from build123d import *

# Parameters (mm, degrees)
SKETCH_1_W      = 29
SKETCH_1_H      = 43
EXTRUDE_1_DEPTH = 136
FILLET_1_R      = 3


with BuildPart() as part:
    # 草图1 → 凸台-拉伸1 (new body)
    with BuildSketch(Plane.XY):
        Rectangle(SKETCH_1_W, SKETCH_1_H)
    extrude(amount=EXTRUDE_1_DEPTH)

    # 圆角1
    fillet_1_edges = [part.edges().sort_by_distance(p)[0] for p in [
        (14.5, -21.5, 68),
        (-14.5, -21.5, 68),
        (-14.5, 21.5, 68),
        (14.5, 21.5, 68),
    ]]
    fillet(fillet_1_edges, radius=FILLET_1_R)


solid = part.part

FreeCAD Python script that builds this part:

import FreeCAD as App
import Part
import Sketcher

V = App.Vector


def edges_at(feature, points):
    """Names of the edges that pass closest to the given points."""
    edges = feature.Shape.Edges
    near = lambda p: min(range(len(edges)), key=lambda i: edges[i].distToShape(Part.Vertex(*p))[0])
    return sorted({f"Edge{near(p) + 1}" for p in points})

doc = App.newDocument("Part")
params = doc.addObject("Spreadsheet::Sheet", "Params")
for row, (alias, value) in enumerate([
    ("sketch1_width", "29 mm"),
    ("sketch1_height", "43 mm"),
    ("pad1_length", "136 mm"),
    ("fillet_radius", "3 mm"),
], start=1):
    params.set(f"A{row}", alias)
    params.set(f"B{row}", "=" + value)
    params.setAlias(f"B{row}", alias)

body = doc.addObject("PartDesign::Body", "Body")

# Sketch on XY plane
sketch1 = body.newObject("Sketcher::SketchObject", "Sketch")
sketch1.AttachmentSupport = (doc.getObject("XY_Plane"), [""])
sketch1.MapMode = "FlatFace"
sketch1.addGeometry(Part.LineSegment(V(-14, 22, 0), V(-14, -22, 0)), False)
sketch1.addGeometry(Part.LineSegment(V(-14, -22, 0), V(14, -22, 0)), False)
sketch1.addGeometry(Part.LineSegment(V(14, -22, 0), V(14, 22, 0)), False)
sketch1.addGeometry(Part.LineSegment(V(14, 22, 0), V(-14, 22, 0)), False)
sketch1.addConstraint(Sketcher.Constraint("Coincident", 0, 2, 1, 1))
sketch1.addConstraint(Sketcher.Constraint("Coincident", 1, 2, 2, 1))
sketch1.addConstraint(Sketcher.Constraint("Coincident", 2, 2, 3, 1))
sketch1.addConstraint(Sketcher.Constraint("Coincident", 3, 2, 0, 1))
sketch1.addConstraint(Sketcher.Constraint("Vertical", 0))
sketch1.addConstraint(Sketcher.Constraint("Horizontal", 1))
sketch1.addConstraint(Sketcher.Constraint("Vertical", 2))
sketch1.addConstraint(Sketcher.Constraint("Horizontal", 3))
sketch1.addConstraint(Sketcher.Constraint("Symmetric", 0, 2, 2, 2, -1, 1))
sketch1.addConstraint(Sketcher.Constraint("DistanceX", 1, 1, 1, 2, 29.0))
sketch1.addConstraint(Sketcher.Constraint("DistanceY", 0, 2, 0, 1, 43.0))
sketch1.setExpression("Constraints[9]", "Params.sketch1_width")
sketch1.setExpression("Constraints[10]", "Params.sketch1_height")
pad1 = body.newObject("PartDesign::Pad", "Pad")
pad1.Profile = sketch1
pad1.setExpression("Length", "Params.pad1_length")
doc.recompute()

fillet = body.newObject("PartDesign::Fillet", "Fillet")
fillet.Base = (pad1, edges_at(pad1, [
    (14.5, -21.5, 68),
    (-14.5, -21.5, 68),
    (-14.5, 21.5, 68),
    (14.5, 21.5, 68),
]))
fillet.setExpression("Radius", "Params.fillet_radius")

doc.recompute()
